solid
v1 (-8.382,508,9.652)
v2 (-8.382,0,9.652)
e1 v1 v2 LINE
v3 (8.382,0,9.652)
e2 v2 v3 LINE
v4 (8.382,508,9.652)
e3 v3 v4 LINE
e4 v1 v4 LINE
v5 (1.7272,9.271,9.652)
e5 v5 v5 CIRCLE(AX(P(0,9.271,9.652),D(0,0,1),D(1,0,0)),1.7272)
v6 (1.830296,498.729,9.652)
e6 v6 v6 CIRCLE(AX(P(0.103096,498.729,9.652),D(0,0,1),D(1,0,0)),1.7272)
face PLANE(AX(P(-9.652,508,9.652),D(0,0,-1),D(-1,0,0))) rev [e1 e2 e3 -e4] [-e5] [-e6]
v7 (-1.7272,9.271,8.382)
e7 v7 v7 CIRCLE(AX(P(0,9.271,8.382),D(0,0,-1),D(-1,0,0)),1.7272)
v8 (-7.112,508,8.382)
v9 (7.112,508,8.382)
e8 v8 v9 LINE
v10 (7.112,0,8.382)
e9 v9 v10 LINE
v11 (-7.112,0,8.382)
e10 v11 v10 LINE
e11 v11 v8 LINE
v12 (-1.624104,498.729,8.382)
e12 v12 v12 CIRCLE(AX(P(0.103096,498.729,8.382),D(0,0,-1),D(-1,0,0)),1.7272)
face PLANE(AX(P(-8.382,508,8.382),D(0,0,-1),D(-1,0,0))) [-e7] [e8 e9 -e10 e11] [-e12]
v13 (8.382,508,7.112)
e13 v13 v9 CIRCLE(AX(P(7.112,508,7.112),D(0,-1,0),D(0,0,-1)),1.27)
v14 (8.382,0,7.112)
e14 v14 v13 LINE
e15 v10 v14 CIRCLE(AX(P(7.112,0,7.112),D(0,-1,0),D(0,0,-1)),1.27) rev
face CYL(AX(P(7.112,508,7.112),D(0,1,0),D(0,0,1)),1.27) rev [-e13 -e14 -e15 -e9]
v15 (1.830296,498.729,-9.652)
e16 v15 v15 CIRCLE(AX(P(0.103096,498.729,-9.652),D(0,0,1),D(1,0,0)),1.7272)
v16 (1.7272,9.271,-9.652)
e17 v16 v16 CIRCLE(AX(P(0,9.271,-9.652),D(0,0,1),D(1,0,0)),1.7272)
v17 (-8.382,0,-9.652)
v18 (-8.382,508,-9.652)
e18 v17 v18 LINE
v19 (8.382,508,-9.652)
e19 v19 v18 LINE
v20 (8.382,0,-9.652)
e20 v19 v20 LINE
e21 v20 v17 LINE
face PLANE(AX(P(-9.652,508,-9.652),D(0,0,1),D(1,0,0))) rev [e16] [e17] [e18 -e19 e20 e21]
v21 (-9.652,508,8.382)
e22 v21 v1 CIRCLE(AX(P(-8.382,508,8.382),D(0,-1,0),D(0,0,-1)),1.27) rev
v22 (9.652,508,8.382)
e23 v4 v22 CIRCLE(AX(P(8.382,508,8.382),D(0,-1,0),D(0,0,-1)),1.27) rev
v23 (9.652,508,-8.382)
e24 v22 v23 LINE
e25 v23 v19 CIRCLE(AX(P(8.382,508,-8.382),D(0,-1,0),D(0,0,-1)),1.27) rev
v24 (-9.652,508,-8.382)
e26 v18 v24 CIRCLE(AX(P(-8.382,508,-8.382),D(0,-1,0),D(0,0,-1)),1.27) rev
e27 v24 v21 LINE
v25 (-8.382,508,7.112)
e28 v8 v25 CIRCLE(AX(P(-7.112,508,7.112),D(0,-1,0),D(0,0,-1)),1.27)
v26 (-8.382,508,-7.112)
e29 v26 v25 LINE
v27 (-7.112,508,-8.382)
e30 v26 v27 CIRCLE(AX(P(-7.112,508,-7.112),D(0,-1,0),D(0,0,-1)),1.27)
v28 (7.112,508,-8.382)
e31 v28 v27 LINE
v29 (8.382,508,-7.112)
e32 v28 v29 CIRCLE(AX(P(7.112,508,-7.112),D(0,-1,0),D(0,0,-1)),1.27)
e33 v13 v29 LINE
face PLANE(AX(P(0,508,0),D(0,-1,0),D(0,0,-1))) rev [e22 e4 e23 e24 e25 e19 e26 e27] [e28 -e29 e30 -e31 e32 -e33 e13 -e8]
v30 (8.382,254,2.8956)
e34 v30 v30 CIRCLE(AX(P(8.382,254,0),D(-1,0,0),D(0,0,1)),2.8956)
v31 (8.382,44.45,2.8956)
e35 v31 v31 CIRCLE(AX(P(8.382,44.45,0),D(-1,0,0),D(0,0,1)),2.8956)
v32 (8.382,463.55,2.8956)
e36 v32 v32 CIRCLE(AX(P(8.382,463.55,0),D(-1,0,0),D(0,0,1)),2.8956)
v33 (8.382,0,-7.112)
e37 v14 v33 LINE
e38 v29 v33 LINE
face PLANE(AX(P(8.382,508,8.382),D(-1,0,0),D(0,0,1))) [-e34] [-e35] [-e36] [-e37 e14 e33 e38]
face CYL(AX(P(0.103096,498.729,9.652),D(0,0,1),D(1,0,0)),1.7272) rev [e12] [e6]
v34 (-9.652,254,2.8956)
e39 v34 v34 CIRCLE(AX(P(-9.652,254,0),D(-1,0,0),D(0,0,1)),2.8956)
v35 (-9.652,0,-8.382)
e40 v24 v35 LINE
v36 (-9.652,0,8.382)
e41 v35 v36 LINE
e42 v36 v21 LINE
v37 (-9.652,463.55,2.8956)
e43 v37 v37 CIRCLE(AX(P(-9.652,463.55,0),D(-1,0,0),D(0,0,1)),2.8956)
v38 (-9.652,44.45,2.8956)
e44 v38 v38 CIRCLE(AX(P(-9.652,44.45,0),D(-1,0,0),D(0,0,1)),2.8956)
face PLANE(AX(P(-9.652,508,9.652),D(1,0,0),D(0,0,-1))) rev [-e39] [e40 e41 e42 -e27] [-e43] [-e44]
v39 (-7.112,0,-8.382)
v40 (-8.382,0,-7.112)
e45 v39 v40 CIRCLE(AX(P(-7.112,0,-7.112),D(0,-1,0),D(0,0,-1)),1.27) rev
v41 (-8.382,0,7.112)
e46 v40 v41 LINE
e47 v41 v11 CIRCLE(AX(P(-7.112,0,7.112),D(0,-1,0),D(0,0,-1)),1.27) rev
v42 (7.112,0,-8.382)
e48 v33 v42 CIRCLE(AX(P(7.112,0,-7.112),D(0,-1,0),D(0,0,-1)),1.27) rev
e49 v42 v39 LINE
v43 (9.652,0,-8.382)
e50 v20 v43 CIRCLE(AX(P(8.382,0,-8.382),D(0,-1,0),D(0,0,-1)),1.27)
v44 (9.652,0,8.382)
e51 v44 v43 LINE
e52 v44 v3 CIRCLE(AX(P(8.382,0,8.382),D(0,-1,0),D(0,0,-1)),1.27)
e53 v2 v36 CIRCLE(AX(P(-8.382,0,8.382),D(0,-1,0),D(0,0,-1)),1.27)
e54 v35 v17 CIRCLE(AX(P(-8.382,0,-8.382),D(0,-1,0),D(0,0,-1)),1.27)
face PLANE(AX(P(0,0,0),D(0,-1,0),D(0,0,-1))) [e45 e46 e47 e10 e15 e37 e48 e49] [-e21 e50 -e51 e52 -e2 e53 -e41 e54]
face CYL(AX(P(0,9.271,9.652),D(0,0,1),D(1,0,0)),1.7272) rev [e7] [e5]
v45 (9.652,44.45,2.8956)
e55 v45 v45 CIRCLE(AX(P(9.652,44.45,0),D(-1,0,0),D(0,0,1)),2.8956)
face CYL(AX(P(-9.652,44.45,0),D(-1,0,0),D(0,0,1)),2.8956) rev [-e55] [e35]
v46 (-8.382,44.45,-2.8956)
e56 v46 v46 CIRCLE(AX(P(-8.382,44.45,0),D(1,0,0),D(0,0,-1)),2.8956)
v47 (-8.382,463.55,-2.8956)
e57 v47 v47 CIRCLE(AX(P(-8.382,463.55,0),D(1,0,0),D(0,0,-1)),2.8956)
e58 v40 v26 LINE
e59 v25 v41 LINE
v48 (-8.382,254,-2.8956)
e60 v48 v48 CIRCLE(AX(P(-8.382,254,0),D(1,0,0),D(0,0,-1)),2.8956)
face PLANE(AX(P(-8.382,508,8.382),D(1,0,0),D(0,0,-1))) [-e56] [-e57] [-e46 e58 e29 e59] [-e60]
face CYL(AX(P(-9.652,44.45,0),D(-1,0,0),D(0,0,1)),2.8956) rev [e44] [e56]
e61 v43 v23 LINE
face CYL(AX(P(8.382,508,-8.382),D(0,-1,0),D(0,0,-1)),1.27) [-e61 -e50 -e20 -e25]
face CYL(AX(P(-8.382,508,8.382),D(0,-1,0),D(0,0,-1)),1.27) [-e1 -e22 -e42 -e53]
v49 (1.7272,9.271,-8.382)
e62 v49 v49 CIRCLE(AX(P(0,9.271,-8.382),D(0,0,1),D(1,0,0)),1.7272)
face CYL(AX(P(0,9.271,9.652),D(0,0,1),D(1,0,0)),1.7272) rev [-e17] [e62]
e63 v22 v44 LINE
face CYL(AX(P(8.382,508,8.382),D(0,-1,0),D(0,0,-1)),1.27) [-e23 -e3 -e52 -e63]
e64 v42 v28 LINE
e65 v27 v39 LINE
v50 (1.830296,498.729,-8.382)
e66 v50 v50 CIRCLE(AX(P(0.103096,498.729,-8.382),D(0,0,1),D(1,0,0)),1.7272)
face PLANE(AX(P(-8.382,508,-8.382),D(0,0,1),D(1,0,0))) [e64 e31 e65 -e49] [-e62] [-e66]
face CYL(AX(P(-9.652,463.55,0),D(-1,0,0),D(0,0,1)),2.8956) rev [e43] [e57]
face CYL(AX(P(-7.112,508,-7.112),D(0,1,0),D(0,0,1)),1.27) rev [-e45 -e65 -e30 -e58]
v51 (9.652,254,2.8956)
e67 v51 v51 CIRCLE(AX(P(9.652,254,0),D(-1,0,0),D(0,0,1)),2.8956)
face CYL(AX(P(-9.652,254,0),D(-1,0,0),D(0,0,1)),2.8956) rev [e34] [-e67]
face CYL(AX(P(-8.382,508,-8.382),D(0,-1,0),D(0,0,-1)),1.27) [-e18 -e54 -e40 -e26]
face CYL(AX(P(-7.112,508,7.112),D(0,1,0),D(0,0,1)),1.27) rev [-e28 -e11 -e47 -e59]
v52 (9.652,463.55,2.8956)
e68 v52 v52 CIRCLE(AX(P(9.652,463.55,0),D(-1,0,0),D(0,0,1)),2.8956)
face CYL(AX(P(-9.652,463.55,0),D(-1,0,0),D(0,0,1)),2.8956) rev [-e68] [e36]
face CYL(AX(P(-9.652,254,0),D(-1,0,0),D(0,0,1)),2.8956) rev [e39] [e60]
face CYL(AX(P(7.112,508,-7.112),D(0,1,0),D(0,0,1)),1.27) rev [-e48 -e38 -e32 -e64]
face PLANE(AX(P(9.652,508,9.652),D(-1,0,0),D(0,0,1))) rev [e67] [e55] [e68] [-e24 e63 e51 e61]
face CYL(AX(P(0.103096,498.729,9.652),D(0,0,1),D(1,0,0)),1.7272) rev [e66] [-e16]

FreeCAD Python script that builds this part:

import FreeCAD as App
import Part
import Sketcher

V = App.Vector
Q = App.Units.Quantity


def edges_at(feature, points):
    """Names of the edges that pass closest to the given points."""
    edges = feature.Shape.Edges
    near = lambda p: min(range(len(edges)), key=lambda i: edges[i].distToShape(Part.Vertex(*p))[0])
    return sorted({f"Edge{near(p) + 1}" for p in points})

doc = App.newDocument("Part")
body = doc.addObject("PartDesign::Body", "Body")

# Sketch on XZ plane
sketch1 = body.newObject("Sketcher::SketchObject", "Sketch")
sketch1.AttachmentSupport = (doc.getObject("XZ_Plane"), [""])
sketch1.MapMode = "FlatFace"
sketch1.addGeometry([
    Part.LineSegment(V(-10, -10, 0), V(-10, 10, 0)),  # 0
    Part.LineSegment(V(-10, 10, 0), V(10, 10, 0)),  # 1
    Part.LineSegment(V(10, 10, 0), V(10, -10, 0)),  # 2
    Part.LineSegment(V(10, -10, 0), V(-10, -10, 0)),  # 3
    Part.LineSegment(V(8, 8, 0), V(-8, 8, 0)),  # 4
    Part.LineSegment(V(-8, 8, 0), V(-8, -8, 0)),  # 5
    Part.LineSegment(V(-8, -8, 0), V(8, -8, 0)),  # 6
    Part.LineSegment(V(8, -8, 0), V(8, 8, 0)),  # 7
], False)
sketch1.addConstraint([
    Sketcher.Constraint("Coincident", 0, 2, 1, 1),
    Sketcher.Constraint("Coincident", 1, 2, 2, 1),
    Sketcher.Constraint("Coincident", 2, 2, 3, 1),
    Sketcher.Constraint("Coincident", 3, 2, 0, 1),
    Sketcher.Constraint("Coincident", 4, 2, 5, 1),
    Sketcher.Constraint("Coincident", 5, 2, 6, 1),
    Sketcher.Constraint("Coincident", 6, 2, 7, 1),
    Sketcher.Constraint("Coincident", 7, 2, 4, 1),
    Sketcher.Constraint("Vertical", 0),
    Sketcher.Constraint("Horizontal", 1),
    Sketcher.Constraint("Vertical", 2),
    Sketcher.Constraint("Horizontal", 3),
    Sketcher.Constraint("Horizontal", 4),
    Sketcher.Constraint("Vertical", 5),
    Sketcher.Constraint("Horizontal", 6),
    Sketcher.Constraint("Vertical", 7),
    Sketcher.Constraint("Symmetric", 0, 2, 2, 2, -1, 1),
    Sketcher.Constraint("Symmetric", 4, 2, 6, 2, -1, 1),
    Sketcher.Constraint("Equal", 3, 0),
    Sketcher.Constraint("Equal", 6, 5),
    Sketcher.Constraint("DistanceX", 1, 1, 1, 2, Q("0.76 in")),
    Sketcher.Constraint("DistanceX", 4, 2, 4, 1, Q("0.66 in")),
])
pad1 = body.newObject("PartDesign::Pad", "Pad")
pad1.Profile = sketch1
pad1.Length = Q("20 in")
pad1.Reversed = True
doc.recompute()

fillet = body.newObject("PartDesign::Fillet", "Fillet")
fillet.Base = (pad1, edges_at(pad1, [
    (-8.382, 254, 8.382),
    (8.382, 254, 8.382),
    (8.382, 254, -8.382),
    (-8.382, 254, -8.382),
    (9.652, 254, 9.652),
    (-9.652, 254, 9.652),
    (-9.652, 254, -9.652),
    (9.652, 254, -9.652),
]))
fillet.Radius = Q("0.05 in")

# Sketch on YZ plane
sketch2 = body.newObject("Sketcher::SketchObject", "Sketch001")
sketch2.AttachmentSupport = (doc.getObject("YZ_Plane"), [""])
sketch2.MapMode = "FlatFace"
sketch2.AttachmentOffset = App.Placement(V(0, 0, -0.38 * 25.4), App.Rotation())
sketch2.addGeometry([
    Part.Circle(V(463.6, 0, 0), V(0, 0, 1), 2.9),
    Part.Circle(V(44.5, 0, 0), V(0, 0, 1), 2.9),
    Part.Circle(V(254, 0, 0), V(0, 0, 1), 2.9),
], False)
sketch2.addConstraint([
    Sketcher.Constraint("Equal", 0, 1),
    Sketcher.Constraint("Equal", 1, 2),
    Sketcher.Constraint("PointOnObject", 0, 3, -1),
    Sketcher.Constraint("PointOnObject", 1, 3, -1),
    Sketcher.Constraint("PointOnObject", 2, 3, -1),
    Sketcher.Constraint("Diameter", 0, Q("0.228 in")),
    Sketcher.Constraint("DistanceX", -1, 1, 2, 3, Q("10 in")),
    Sketcher.Constraint("DistanceX", 1, 3, 0, 3, Q("16.5 in")),
    Sketcher.Constraint("DistanceX", -1, 1, 0, 3, Q("18.25 in")),
])
doc.recompute()
hole = body.newObject("PartDesign::Hole", "Hole")
hole.Profile = sketch2
hole.ThreadType = "None"
hole.Diameter = Q("0.228 in")
hole.DepthType = "ThroughAll"
hole.Reversed = True

# Sketch on XY plane
sketch3 = body.newObject("Sketcher::SketchObject", "Sketch002")
sketch3.AttachmentSupport = (doc.getObject("XY_Plane"), [""])
sketch3.MapMode = "FlatFace"
sketch3.AttachmentOffset = App.Placement(V(0, 0, 0.38 * 25.4), App.Rotation())
sketch3.addGeometry([
    Part.Circle(V(0, 9.3, 0), V(0, 0, 1), 1.7),
    Part.Circle(V(0.1, 498.7, 0), V(0, 0, 1), 1.7),
], False)
sketch3.addConstraint([
    Sketcher.Constraint("Equal", 0, 1),
    Sketcher.Constraint("PointOnObject", 0, 3, -2),
    Sketcher.Constraint("Diameter", 0, Q("0.136 in")),
    Sketcher.Constraint("DistanceY", 0, 3, 1, 3, Q("19.27 in")),
    Sketcher.Constraint("DistanceY", -1, 1, 0, 3, Q("0.365 in")),
    Sketcher.Constraint("DistanceX", -1, 1, 1, 3, 0.103096),
])
doc.recompute()
hole2 = body.newObject("PartDesign::Hole", "Hole001")
hole2.Profile = sketch3
hole2.ThreadType = "None"
hole2.Diameter = Q("0.136 in")
hole2.DepthType = "ThroughAll"

doc.recompute()
